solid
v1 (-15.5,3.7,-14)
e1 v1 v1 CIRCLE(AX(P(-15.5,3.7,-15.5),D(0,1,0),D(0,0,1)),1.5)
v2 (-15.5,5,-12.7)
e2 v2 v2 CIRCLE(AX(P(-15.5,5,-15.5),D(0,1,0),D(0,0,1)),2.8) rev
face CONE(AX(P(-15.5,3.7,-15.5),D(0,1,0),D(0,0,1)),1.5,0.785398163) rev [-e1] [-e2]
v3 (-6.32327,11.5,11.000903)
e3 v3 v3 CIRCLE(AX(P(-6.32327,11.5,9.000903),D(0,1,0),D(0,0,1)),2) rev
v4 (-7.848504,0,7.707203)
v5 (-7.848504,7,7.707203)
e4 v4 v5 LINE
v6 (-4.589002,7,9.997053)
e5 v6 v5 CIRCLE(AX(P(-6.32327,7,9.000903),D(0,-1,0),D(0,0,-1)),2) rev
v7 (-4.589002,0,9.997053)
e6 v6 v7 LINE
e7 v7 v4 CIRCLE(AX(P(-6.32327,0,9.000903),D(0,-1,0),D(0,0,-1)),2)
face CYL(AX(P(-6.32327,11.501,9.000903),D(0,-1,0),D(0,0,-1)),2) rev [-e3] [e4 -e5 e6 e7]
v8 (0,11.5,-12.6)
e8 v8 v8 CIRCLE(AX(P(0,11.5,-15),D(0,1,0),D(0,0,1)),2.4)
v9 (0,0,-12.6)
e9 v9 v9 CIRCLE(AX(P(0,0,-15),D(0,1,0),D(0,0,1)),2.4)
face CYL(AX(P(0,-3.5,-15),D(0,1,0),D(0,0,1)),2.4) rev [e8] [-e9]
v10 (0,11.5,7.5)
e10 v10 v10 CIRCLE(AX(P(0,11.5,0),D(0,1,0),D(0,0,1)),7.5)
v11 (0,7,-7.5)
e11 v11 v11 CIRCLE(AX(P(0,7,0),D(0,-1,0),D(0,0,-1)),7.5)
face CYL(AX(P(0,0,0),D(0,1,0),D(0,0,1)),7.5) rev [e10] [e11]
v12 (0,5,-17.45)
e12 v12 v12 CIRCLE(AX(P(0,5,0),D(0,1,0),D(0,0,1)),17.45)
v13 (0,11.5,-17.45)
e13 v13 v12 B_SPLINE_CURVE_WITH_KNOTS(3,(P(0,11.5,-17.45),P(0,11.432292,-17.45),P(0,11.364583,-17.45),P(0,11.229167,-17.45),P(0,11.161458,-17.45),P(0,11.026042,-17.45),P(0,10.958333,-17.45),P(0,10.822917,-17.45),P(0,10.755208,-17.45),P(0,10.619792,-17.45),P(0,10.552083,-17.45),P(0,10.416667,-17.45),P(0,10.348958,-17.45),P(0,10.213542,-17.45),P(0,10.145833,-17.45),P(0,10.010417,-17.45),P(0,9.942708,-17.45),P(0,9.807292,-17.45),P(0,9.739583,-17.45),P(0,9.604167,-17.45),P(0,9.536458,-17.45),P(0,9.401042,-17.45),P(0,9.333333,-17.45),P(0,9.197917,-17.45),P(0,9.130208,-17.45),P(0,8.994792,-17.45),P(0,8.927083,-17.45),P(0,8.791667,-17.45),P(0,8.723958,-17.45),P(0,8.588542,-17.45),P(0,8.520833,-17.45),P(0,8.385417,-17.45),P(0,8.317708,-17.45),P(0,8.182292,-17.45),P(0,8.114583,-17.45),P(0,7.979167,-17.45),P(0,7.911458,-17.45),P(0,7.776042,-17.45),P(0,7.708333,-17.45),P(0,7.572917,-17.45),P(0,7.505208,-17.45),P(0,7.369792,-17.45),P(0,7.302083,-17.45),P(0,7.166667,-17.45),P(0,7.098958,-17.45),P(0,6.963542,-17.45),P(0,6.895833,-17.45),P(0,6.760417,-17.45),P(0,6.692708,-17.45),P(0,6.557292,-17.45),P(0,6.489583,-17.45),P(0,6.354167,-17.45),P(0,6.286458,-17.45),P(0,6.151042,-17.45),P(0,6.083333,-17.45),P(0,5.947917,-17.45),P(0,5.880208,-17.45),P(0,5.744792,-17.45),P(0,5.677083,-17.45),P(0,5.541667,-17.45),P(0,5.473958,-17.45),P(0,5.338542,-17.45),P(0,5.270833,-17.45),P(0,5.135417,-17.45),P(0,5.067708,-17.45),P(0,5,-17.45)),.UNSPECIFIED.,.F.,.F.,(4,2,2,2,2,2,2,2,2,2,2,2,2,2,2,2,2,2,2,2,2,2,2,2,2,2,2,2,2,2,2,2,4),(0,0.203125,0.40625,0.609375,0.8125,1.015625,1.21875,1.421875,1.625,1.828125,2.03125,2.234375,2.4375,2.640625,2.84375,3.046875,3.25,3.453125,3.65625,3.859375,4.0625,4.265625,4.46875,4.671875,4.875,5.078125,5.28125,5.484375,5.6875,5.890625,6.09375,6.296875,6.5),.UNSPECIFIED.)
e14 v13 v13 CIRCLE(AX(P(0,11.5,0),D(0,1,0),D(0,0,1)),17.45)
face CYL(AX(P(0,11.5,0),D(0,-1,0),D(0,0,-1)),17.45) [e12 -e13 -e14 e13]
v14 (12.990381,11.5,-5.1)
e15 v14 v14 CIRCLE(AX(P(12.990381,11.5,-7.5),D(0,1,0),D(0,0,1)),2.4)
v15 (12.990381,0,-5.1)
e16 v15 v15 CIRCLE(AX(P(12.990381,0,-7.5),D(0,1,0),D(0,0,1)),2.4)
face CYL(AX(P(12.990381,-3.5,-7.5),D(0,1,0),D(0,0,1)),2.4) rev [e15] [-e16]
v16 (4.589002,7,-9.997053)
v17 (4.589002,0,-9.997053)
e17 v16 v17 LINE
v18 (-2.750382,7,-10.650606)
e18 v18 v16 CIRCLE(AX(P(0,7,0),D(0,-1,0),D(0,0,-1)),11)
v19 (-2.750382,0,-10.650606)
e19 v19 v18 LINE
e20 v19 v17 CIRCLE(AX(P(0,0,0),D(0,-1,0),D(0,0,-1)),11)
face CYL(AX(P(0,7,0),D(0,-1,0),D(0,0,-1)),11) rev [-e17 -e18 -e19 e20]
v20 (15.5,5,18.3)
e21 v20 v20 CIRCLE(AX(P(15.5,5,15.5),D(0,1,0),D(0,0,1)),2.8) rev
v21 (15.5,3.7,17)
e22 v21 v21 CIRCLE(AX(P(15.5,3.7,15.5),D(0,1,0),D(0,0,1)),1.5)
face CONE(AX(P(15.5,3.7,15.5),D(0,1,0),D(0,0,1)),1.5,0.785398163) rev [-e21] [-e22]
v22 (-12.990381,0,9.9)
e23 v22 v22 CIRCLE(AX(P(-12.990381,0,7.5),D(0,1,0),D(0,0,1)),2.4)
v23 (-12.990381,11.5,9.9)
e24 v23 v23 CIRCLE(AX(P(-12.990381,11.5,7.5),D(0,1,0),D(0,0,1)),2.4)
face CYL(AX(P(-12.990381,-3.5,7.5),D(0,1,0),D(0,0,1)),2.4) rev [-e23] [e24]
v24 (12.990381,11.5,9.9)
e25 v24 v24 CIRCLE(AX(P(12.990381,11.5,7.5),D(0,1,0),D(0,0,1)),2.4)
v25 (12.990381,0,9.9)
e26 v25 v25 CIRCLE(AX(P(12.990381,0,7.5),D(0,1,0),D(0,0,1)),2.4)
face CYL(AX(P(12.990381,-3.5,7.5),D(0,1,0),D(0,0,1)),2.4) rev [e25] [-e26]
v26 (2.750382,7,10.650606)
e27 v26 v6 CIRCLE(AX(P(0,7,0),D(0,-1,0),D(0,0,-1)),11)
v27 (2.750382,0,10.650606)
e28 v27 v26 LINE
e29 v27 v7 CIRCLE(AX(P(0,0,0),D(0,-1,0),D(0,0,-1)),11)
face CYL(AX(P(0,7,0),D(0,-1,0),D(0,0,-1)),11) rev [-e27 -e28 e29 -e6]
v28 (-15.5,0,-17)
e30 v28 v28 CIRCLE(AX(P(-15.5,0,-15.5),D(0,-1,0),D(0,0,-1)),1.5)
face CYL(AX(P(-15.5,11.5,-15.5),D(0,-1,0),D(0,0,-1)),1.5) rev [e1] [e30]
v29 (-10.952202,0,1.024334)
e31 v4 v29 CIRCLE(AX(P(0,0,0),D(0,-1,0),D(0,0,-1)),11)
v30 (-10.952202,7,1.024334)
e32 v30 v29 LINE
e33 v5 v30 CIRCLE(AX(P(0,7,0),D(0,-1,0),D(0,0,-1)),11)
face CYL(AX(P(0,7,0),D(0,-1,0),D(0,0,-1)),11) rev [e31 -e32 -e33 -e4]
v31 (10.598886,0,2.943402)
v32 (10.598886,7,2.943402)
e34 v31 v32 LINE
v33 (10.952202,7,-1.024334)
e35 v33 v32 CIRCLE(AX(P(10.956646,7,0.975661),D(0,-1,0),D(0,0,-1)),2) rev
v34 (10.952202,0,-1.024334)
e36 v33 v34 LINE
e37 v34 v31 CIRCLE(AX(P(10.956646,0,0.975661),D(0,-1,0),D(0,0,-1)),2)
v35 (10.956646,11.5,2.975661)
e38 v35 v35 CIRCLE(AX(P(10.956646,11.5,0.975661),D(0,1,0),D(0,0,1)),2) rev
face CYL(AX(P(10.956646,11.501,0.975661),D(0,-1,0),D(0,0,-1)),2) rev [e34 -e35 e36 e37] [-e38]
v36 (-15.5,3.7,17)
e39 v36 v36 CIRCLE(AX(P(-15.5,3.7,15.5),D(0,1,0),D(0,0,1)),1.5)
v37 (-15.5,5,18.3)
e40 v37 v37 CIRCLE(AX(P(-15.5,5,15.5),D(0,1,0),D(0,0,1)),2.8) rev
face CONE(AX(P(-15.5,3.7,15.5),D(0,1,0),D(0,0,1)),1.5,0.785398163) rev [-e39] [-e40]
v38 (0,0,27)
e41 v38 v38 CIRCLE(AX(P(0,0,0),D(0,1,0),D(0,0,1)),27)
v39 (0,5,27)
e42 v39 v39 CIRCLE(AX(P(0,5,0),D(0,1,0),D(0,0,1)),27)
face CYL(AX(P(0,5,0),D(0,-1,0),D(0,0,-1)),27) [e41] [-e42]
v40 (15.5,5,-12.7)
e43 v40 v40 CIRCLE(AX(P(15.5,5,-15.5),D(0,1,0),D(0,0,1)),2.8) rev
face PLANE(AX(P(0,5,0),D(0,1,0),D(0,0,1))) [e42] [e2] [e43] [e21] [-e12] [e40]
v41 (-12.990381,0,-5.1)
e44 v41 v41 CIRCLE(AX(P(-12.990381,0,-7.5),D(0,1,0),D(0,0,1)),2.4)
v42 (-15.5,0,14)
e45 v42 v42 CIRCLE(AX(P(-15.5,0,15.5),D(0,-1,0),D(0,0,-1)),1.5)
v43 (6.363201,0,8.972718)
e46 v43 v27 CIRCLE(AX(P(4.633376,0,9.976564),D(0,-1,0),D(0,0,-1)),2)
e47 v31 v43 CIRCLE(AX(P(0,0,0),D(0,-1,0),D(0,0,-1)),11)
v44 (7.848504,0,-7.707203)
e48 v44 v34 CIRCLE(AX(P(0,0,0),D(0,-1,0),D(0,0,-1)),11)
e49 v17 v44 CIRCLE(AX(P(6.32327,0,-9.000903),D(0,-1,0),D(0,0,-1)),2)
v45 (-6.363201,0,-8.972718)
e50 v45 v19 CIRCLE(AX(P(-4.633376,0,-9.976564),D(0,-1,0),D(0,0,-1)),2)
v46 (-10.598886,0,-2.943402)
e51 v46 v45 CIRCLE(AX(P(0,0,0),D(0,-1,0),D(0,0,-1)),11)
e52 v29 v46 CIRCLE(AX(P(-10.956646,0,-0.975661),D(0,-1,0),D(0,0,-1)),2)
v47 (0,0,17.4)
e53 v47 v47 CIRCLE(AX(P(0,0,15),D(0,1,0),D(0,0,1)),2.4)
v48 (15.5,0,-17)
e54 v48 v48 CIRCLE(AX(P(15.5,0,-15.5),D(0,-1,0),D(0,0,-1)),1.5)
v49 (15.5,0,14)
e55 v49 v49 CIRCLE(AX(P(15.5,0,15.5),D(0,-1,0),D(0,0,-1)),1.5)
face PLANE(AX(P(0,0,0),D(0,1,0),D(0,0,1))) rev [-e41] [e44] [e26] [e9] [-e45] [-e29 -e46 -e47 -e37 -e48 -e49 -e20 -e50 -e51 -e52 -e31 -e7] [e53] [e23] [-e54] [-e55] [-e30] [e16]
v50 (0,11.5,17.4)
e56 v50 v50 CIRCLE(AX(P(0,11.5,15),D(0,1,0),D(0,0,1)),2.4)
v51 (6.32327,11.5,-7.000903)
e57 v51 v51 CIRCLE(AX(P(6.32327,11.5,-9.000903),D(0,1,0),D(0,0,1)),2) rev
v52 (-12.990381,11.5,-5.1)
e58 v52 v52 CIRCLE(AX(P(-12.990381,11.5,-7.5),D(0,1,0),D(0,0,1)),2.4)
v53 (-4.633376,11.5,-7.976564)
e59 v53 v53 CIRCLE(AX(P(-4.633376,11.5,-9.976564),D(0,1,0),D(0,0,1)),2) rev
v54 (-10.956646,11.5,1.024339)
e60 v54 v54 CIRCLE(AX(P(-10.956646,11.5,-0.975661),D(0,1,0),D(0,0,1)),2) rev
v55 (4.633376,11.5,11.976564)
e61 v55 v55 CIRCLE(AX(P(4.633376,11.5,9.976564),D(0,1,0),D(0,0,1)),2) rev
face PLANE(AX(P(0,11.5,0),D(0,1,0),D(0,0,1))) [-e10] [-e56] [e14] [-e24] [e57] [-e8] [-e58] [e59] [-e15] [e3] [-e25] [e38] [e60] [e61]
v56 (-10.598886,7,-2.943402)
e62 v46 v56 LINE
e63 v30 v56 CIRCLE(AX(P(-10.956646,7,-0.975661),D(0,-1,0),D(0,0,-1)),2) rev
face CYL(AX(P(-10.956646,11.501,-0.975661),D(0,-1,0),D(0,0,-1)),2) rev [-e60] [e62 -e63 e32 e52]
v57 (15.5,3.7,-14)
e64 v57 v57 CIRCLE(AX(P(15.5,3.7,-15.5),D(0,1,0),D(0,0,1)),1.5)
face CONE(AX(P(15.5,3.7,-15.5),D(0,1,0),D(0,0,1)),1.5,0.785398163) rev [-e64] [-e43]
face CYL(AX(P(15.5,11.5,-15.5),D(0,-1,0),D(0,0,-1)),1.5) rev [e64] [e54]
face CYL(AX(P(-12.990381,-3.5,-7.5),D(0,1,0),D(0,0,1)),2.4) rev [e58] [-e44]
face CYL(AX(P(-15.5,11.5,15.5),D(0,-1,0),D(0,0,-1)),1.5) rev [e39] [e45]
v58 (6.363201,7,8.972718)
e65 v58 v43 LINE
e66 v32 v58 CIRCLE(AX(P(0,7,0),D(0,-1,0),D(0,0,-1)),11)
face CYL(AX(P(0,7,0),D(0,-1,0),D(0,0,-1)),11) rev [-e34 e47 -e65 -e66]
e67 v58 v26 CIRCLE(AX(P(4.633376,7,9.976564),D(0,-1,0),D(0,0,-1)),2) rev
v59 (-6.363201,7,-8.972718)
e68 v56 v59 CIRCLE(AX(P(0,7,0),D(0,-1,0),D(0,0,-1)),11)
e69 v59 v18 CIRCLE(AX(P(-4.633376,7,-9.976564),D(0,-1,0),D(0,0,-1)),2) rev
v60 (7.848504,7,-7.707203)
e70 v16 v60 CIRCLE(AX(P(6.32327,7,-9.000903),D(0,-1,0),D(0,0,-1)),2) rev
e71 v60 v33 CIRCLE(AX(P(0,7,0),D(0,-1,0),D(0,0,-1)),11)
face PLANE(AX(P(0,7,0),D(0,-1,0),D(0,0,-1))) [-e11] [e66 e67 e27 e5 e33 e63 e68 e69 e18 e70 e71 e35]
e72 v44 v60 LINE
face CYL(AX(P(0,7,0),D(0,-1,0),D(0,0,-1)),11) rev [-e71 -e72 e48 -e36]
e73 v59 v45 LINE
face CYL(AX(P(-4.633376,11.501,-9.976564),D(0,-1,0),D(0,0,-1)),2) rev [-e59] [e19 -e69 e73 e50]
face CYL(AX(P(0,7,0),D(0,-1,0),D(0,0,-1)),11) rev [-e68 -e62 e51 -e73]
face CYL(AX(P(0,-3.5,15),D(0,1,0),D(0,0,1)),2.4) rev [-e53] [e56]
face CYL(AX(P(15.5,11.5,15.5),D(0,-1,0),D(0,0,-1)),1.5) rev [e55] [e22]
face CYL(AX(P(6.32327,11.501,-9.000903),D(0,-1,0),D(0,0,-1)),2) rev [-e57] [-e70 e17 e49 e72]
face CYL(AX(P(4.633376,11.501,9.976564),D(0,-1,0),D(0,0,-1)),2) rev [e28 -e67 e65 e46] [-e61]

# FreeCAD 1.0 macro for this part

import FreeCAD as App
import Part
import Sketcher
from FreeCAD import Vector


def edges_at(feature, points):
    """Names of the edges that pass closest to the given points."""
    edges = feature.Shape.Edges
    near = lambda p: min(range(len(edges)), key=lambda i: edges[i].distToShape(Part.Vertex(*p))[0])
    return sorted({f"Edge{near(p) + 1}" for p in points})

doc = App.newDocument("Part")
body = doc.addObject("PartDesign::Body", "Body")

# Sketch on XZ plane
sketch1 = body.newObject("Sketcher::SketchObject", "Sketch")
sketch1.AttachmentSupport = (doc.getObject("XZ_Plane"), [""])
sketch1.MapMode = "FlatFace"
sketch1.addGeometry(Part.Circle(Vector(0, 0, 0), Vector(0, 0, 1), 27), False)
sketch1.addConstraint(Sketcher.Constraint("Coincident", 0, 3, -1, 1))
sketch1.addConstraint(Sketcher.Constraint("Diameter", 0, 54.0))
pad1 = body.newObject("PartDesign::Pad", "Pad")
pad1.Profile = sketch1
pad1.Length = 5
pad1.Reversed = True

# Sketch on XZ plane
sketch2 = body.newObject("Sketcher::SketchObject", "Sketch001")
sketch2.AttachmentSupport = (doc.getObject("XZ_Plane"), [""])
sketch2.MapMode = "FlatFace"
sketch2.AttachmentOffset = App.Placement(Vector(0, 0, -5), App.Rotation())
sketch2.addGeometry(Part.Circle(Vector(0, 0, 0), Vector(0, 0, 1), 17), False)
sketch2.addConstraint(Sketcher.Constraint("Coincident", 0, 3, -1, 1))
sketch2.addConstraint(Sketcher.Constraint("Diameter", 0, 34.9))
pad2 = body.newObject("PartDesign::Pad", "Pad001")
pad2.Profile = sketch2
pad2.Length = 6.5
pad2.Reversed = True

# Sketch on XZ plane
sketch3 = body.newObject("Sketcher::SketchObject", "Sketch002")
sketch3.AttachmentSupport = (doc.getObject("XZ_Plane"), [""])
sketch3.MapMode = "FlatFace"
sketch3.addGeometry(Part.Circle(Vector(0, 0, 0), Vector(0, 0, 1), 11), False)
sketch3.addConstraint(Sketcher.Constraint("Coincident", 0, 3, -1, 1))
sketch3.addConstraint(Sketcher.Constraint("Diameter", 0, 22.0))
pocket1 = body.newObject("PartDesign::Pocket", "Pocket")
pocket1.Profile = sketch3
pocket1.Length = 7

# Sketch on XZ plane
sketch4 = body.newObject("Sketcher::SketchObject", "Sketch003")
sketch4.AttachmentSupport = (doc.getObject("XZ_Plane"), [""])
sketch4.MapMode = "FlatFace"
sketch4.addGeometry(Part.Circle(Vector(-15.5, 15.5, 0), Vector(0, 0, 1), 1.5), False)
sketch4.addGeometry(Part.Circle(Vector(15.5, 15.5, 0), Vector(0, 0, 1), 1.5), False)
sketch4.addGeometry(Part.Circle(Vector(15.5, -15.5, 0), Vector(0, 0, 1), 1.5), False)
sketch4.addGeometry(Part.Circle(Vector(-15.5, -15.5, 0), Vector(0, 0, 1), 1.5), False)
sketch4.addConstraint(Sketcher.Constraint("Equal", 0, 1))
sketch4.addConstraint(Sketcher.Constraint("Equal", 1, 2))
sketch4.addConstraint(Sketcher.Constraint("Equal", 2, 3))
sketch4.addConstraint(Sketcher.Constraint("Symmetric", 0, 3, 2, 3, -1, 1))
sketch4.addConstraint(Sketcher.Constraint("Symmetric", 1, 3, 3, 3, -1, 1))
sketch4.addConstraint(Sketcher.Constraint("Symmetric", 0, 3, 1, 3, -2))
sketch4.addConstraint(Sketcher.Constraint("Diameter", 0, 3.0))
sketch4.addConstraint(Sketcher.Constraint("DistanceX", 0, 3, 1, 3, 31.0))
sketch4.addConstraint(Sketcher.Constraint("DistanceY", 2, 3, 1, 3, 31.0))
pocket2 = body.newObject("PartDesign::Pocket", "Pocket001")
pocket2.Profile = sketch4
pocket2.Type = "ThroughAll"

# Sketch on XZ plane
sketch5 = body.newObject("Sketcher::SketchObject", "Sketch004")
sketch5.AttachmentSupport = (doc.getObject("XZ_Plane"), [""])
sketch5.MapMode = "FlatFace"
sketch5.AttachmentOffset = App.Placement(Vector(0, 0, -11.5), App.Rotation())
sketch5.addGeometry(Part.Circle(Vector(0, 0, 0), Vector(0, 0, 1), 8), False)
sketch5.addConstraint(Sketcher.Constraint("Coincident", 0, 3, -1, 1))
sketch5.addConstraint(Sketcher.Constraint("Diameter", 0, 15.0))
pocket3 = body.newObject("PartDesign::Pocket", "Pocket002")
pocket3.Profile = sketch5
pocket3.Type = "ThroughAll"
pocket3.Reversed = True
doc.recompute()

chamfer = body.newObject("PartDesign::Chamfer", "Chamfer")
chamfer.Base = (pocket3, edges_at(pocket3, [
    (-15.5, 5, -14),
    (15.5, 5, -14),
    (15.5, 5, 17),
    (-15.5, 5, 17),
]))
chamfer.Size = 1.3

# Sketch on XZ plane
sketch6 = body.newObject("Sketcher::SketchObject", "Sketch005")
sketch6.AttachmentSupport = (doc.getObject("XZ_Plane"), [""])
sketch6.MapMode = "FlatFace"
sketch6.AttachmentOffset = App.Placement(Vector(0, 0, -11.5), App.Rotation())
sketch6.addGeometry(Part.Circle(Vector(0, -15, 0), Vector(0, 0, 1), 2.4), False)
sketch6.addGeometry(Part.Circle(Vector(13, -7.5, 0), Vector(0, 0, 1), 2.4), False)
sketch6.addGeometry(Part.Circle(Vector(13, 7.5, 0), Vector(0, 0, 1), 2.4), False)
sketch6.addGeometry(Part.Circle(Vector(0, 15, 0), Vector(0, 0, 1), 2.4), False)
sketch6.addGeometry(Part.Circle(Vector(-13, 7.5, 0), Vector(0, 0, 1), 2.4), False)
sketch6.addGeometry(Part.Circle(Vector(-13, -7.5, 0), Vector(0, 0, 1), 2.4), False)
sketch6.addConstraint(Sketcher.Constraint("Equal", 0, 1))
sketch6.addConstraint(Sketcher.Constraint("Equal", 1, 2))
sketch6.addConstraint(Sketcher.Constraint("Equal", 2, 3))
sketch6.addConstraint(Sketcher.Constraint("Equal", 3, 4))
sketch6.addConstraint(Sketcher.Constraint("Equal", 4, 5))
sketch6.addConstraint(Sketcher.Constraint("Symmetric", 0, 3, 3, 3, -1, 1))
sketch6.addConstraint(Sketcher.Constraint("Symmetric", 1, 3, 4, 3, -1, 1))
sketch6.addConstraint(Sketcher.Constraint("Symmetric", 2, 3, 5, 3, -1, 1))
sketch6.addConstraint(Sketcher.Constraint("Symmetric", 2, 3, 4, 3, -2))
sketch6.addConstraint(Sketcher.Constraint("PointOnObject", 0, 3, -2))
sketch6.addConstraint(Sketcher.Constraint("Diameter", 0, 4.8))
sketch6.addConstraint(Sketcher.Constraint("DistanceY", 0, 3, -1, 1, 15.0))
sketch6.addConstraint(Sketcher.Constraint("DistanceY", 1, 3, 2, 3, 15.0))
sketch6.addConstraint(Sketcher.Constraint("DistanceX", -1, 1, 1, 3, 12.990381))
pocket4 = body.newObject("PartDesign::Pocket", "Pocket003")
pocket4.Profile = sketch6
pocket4.Length = 15
pocket4.Reversed = True

# Sketch on XZ plane
sketch7 = body.newObject("Sketcher::SketchObject", "Sketch006")
sketch7.AttachmentSupport = (doc.getObject("XZ_Plane"), [""])
sketch7.MapMode = "FlatFace"
sketch7.addGeometry(Part.Circle(Vector(4.6, 10, 0), Vector(0, 0, 1), 2), False)
sketch7.addConstraint(Sketcher.Constraint("Diameter", 0, 4.0))
sketch7.addConstraint(Sketcher.Constraint("DistanceX", -1, 1, 0, 3, 4.633376))
sketch7.addConstraint(Sketcher.Constraint("DistanceY", -1, 1, 0, 3, 9.976564))
pocket5 = body.newObject("PartDesign::Pocket", "Pocket004")
pocket5.Profile = sketch7
pocket5.Type = "UpToFirst"

# Sketch on XZ plane
sketch8 = body.newObject("Sketcher::SketchObject", "Sketch007")
sketch8.AttachmentSupport = (doc.getObject("XZ_Plane"), [""])
sketch8.MapMode = "FlatFace"
sketch8.addGeometry(Part.Circle(Vector(11, 1, 0), Vector(0, 0, 1), 2), False)
sketch8.addConstraint(Sketcher.Constraint("Diameter", 0, 4.0))
sketch8.addConstraint(Sketcher.Constraint("DistanceY", -1, 1, 0, 3, 0.975661))
sketch8.addConstraint(Sketcher.Constraint("DistanceX", -1, 1, 0, 3, 10.956646))
pocket6 = body.newObject("PartDesign::Pocket", "Pocket005")
pocket6.Profile = sketch8
pocket6.Type = "UpToFirst"

# Sketch on XZ plane
sketch9 = body.newObject("Sketcher::SketchObject", "Sketch008")
sketch9.AttachmentSupport = (doc.getObject("XZ_Plane"), [""])
sketch9.MapMode = "FlatFace"
sketch9.addGeometry(Part.Circle(Vector(6.3, -9, 0), Vector(0, 0, 1), 2), False)
sketch9.addConstraint(Sketcher.Constraint("Diameter", 0, 4.0))
sketch9.addConstraint(Sketcher.Constraint("DistanceX", -1, 1, 0, 3, 6.32327))
sketch9.addConstraint(Sketcher.Constraint("DistanceY", 0, 3, -1, 1, 9.000903))
pocket7 = body.newObject("PartDesign::Pocket", "Pocket006")
pocket7.Profile = sketch9
pocket7.Length = 11.5

# Sketch on XZ plane
sketch10 = body.newObject("Sketcher::SketchObject", "Sketch009")
sketch10.AttachmentSupport = (doc.getObject("XZ_Plane"), [""])
sketch10.MapMode = "FlatFace"
sketch10.addGeometry(Part.Circle(Vector(-4.6, -10, 0), Vector(0, 0, 1), 2), False)
sketch10.addConstraint(Sketcher.Constraint("Diameter", 0, 4.0))
sketch10.addConstraint(Sketcher.Constraint("DistanceX", 0, 3, -1, 1, 4.633376))
sketch10.addConstraint(Sketcher.Constraint("DistanceY", 0, 3, -1, 1, 9.976564))
pocket8 = body.newObject("PartDesign::Pocket", "Pocket007")
pocket8.Profile = sketch10
pocket8.Type = "UpToFirst"

# Sketch on XZ plane
sketch11 = body.newObject("Sketcher::SketchObject", "Sketch010")
sketch11.AttachmentSupport = (doc.getObject("XZ_Plane"), [""])
sketch11.MapMode = "FlatFace"
sketch11.addGeometry(Part.Circle(Vector(-11, -1, 0), Vector(0, 0, 1), 2), False)
sketch11.addConstraint(Sketcher.Constraint("Diameter", 0, 4.0))
sketch11.addConstraint(Sketcher.Constraint("DistanceY", 0, 3, -1, 1, 0.975661))
sketch11.addConstraint(Sketcher.Constraint("DistanceX", 0, 3, -1, 1, 10.956646))
pocket9 = body.newObject("PartDesign::Pocket", "Pocket008")
pocket9.Profile = sketch11
pocket9.Type = "UpToFirst"

# Sketch on XZ plane
sketch12 = body.newObject("Sketcher::SketchObject", "Sketch011")
sketch12.AttachmentSupport = (doc.getObject("XZ_Plane"), [""])
sketch12.MapMode = "FlatFace"
sketch12.addGeometry(Part.Circle(Vector(-6.3, 9, 0), Vector(0, 0, 1), 2), False)
sketch12.addConstraint(Sketcher.Constraint("Diameter", 0, 4.0))
sketch12.addConstraint(Sketcher.Constraint("DistanceX", 0, 3, -1, 1, 6.32327))
sketch12.addConstraint(Sketcher.Constraint("DistanceY", -1, 1, 0, 3, 9.000903))
pocket10 = body.newObject("PartDesign::Pocket", "Pocket009")
pocket10.Profile = sketch12
pocket10.Length = 11.5

doc.recompute()
